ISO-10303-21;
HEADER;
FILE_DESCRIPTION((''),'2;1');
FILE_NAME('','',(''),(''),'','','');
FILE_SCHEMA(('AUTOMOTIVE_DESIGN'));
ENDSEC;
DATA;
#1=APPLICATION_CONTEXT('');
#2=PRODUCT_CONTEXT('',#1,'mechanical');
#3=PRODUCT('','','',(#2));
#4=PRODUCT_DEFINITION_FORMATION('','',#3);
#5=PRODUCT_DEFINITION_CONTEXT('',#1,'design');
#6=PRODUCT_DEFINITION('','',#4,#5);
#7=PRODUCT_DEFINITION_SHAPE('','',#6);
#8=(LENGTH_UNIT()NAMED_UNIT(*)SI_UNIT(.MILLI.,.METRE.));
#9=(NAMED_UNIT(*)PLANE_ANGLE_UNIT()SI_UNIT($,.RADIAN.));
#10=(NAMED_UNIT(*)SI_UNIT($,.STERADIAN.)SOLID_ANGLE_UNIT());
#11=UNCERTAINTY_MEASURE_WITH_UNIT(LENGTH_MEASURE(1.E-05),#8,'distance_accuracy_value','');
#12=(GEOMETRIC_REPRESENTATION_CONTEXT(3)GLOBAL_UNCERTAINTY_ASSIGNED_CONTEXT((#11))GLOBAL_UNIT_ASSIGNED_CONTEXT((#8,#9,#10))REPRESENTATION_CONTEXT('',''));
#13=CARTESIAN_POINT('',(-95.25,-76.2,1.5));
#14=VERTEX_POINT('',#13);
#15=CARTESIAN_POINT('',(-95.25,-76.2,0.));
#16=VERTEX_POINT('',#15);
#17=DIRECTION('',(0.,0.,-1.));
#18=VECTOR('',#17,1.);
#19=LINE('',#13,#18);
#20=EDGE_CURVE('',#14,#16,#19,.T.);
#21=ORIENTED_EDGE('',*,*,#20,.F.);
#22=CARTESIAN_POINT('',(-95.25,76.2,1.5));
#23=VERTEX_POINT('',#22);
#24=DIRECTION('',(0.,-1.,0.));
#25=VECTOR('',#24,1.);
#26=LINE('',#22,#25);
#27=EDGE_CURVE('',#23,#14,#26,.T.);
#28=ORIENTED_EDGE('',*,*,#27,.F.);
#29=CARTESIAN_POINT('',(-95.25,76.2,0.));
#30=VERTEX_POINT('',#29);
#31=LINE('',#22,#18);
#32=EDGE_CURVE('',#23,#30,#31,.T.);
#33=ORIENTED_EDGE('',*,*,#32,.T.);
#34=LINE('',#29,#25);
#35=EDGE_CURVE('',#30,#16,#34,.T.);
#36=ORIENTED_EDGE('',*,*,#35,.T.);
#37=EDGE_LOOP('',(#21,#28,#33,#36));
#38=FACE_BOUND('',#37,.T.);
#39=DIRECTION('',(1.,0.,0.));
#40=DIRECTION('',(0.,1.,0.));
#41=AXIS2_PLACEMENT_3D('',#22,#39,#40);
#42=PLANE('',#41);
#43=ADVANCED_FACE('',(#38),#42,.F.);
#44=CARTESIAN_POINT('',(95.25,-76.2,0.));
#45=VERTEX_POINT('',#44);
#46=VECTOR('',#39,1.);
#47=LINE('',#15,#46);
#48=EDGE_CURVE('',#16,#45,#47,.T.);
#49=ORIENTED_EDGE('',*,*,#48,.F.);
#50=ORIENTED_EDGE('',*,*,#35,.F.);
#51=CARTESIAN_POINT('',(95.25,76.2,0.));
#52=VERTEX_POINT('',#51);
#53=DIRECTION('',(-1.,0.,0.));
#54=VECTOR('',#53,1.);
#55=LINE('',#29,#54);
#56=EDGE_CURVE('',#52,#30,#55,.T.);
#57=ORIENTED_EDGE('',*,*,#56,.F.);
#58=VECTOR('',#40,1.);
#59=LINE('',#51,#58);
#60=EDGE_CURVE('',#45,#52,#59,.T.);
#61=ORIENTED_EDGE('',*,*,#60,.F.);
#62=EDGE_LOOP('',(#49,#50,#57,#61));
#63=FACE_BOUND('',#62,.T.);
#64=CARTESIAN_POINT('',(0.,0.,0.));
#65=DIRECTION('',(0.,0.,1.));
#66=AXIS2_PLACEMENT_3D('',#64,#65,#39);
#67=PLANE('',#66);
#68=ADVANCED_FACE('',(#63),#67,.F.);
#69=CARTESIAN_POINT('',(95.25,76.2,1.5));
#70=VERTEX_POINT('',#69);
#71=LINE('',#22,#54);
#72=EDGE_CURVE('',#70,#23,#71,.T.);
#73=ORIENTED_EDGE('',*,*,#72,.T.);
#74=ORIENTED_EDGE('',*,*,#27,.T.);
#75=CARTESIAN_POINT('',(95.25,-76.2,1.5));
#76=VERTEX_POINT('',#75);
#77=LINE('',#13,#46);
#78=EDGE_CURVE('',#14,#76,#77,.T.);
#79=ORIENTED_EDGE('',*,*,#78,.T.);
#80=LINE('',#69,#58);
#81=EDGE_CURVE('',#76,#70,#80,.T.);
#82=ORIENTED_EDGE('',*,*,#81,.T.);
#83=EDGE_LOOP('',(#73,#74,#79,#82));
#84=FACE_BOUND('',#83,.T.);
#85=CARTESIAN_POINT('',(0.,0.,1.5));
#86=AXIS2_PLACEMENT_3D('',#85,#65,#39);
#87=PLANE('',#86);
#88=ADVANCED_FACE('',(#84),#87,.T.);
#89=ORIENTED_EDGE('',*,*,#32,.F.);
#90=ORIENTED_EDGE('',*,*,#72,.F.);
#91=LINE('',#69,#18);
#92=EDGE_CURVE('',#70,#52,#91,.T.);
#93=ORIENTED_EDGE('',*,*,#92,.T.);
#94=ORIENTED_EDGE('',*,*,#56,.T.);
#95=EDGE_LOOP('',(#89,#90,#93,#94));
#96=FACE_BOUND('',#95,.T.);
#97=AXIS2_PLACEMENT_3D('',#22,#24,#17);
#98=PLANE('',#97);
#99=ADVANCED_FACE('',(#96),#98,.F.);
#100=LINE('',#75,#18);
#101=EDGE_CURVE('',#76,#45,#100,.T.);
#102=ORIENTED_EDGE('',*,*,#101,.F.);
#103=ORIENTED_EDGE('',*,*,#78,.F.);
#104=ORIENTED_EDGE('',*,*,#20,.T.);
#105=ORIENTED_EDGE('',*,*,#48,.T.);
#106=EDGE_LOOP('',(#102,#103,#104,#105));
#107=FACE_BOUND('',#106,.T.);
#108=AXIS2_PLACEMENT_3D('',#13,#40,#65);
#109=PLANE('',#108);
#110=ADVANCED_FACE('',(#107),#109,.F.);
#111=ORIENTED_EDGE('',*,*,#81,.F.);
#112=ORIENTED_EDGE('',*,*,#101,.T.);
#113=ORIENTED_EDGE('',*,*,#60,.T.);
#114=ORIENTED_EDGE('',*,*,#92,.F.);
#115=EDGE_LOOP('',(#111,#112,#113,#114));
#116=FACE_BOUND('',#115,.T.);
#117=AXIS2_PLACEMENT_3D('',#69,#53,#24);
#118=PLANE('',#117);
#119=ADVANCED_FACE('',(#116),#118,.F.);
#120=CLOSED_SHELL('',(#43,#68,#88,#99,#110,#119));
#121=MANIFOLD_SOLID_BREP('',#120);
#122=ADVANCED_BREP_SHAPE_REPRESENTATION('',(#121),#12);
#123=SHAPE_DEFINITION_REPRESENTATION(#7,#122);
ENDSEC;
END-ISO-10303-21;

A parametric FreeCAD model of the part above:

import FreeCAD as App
import Part
import Sketcher

V = App.Vector
Q = App.Units.Quantity

doc = App.newDocument("Part")
body = doc.addObject("PartDesign::Body", "Body")

sketch1 = body.newObject("Sketcher::SketchObject", "Sketch")
sketch1.AttachmentSupport = (doc.getObject("XY_Plane"), [""])
sketch1.MapMode = "FlatFace"
sketch1.addGeometry([
    Part.LineSegment(V(-95.25, 76.2, 0), V(-95.25, -76.2, 0)),
    Part.LineSegment(V(-95.25, -76.2, 0), V(95.25, -76.2, 0)),
    Part.LineSegment(V(95.25, -76.2, 0), V(95.25, 76.2, 0)),
    Part.LineSegment(V(95.25, 76.2, 0), V(-95.25, 76.2, 0)),
], False)
sketch1.addConstraint([
    Sketcher.Constraint("Coincident", 0, 2, 1, 1),
    Sketcher.Constraint("Coincident", 1, 2, 2, 1),
    Sketcher.Constraint("Coincident", 2, 2, 3, 1),
    Sketcher.Constraint("Coincident", 3, 2, 0, 1),
    Sketcher.Constraint("Vertical", 0),
    Sketcher.Constraint("Horizontal", 1),
    Sketcher.Constraint("Vertical", 2),
    Sketcher.Constraint("Horizontal", 3),
    Sketcher.Constraint("Symmetric", 0, 2, 2, 2, -1, 1),
    Sketcher.Constraint("DistanceY", 0, 2, 0, 1, Q("6 in")),
    Sketcher.Constraint("DistanceX", 1, 1, 1, 2, Q("7.5 in")),
])
pad1 = body.newObject("PartDesign::Pad", "Pad")
pad1.Profile = sketch1
pad1.Length = 1.5

doc.recompute()
